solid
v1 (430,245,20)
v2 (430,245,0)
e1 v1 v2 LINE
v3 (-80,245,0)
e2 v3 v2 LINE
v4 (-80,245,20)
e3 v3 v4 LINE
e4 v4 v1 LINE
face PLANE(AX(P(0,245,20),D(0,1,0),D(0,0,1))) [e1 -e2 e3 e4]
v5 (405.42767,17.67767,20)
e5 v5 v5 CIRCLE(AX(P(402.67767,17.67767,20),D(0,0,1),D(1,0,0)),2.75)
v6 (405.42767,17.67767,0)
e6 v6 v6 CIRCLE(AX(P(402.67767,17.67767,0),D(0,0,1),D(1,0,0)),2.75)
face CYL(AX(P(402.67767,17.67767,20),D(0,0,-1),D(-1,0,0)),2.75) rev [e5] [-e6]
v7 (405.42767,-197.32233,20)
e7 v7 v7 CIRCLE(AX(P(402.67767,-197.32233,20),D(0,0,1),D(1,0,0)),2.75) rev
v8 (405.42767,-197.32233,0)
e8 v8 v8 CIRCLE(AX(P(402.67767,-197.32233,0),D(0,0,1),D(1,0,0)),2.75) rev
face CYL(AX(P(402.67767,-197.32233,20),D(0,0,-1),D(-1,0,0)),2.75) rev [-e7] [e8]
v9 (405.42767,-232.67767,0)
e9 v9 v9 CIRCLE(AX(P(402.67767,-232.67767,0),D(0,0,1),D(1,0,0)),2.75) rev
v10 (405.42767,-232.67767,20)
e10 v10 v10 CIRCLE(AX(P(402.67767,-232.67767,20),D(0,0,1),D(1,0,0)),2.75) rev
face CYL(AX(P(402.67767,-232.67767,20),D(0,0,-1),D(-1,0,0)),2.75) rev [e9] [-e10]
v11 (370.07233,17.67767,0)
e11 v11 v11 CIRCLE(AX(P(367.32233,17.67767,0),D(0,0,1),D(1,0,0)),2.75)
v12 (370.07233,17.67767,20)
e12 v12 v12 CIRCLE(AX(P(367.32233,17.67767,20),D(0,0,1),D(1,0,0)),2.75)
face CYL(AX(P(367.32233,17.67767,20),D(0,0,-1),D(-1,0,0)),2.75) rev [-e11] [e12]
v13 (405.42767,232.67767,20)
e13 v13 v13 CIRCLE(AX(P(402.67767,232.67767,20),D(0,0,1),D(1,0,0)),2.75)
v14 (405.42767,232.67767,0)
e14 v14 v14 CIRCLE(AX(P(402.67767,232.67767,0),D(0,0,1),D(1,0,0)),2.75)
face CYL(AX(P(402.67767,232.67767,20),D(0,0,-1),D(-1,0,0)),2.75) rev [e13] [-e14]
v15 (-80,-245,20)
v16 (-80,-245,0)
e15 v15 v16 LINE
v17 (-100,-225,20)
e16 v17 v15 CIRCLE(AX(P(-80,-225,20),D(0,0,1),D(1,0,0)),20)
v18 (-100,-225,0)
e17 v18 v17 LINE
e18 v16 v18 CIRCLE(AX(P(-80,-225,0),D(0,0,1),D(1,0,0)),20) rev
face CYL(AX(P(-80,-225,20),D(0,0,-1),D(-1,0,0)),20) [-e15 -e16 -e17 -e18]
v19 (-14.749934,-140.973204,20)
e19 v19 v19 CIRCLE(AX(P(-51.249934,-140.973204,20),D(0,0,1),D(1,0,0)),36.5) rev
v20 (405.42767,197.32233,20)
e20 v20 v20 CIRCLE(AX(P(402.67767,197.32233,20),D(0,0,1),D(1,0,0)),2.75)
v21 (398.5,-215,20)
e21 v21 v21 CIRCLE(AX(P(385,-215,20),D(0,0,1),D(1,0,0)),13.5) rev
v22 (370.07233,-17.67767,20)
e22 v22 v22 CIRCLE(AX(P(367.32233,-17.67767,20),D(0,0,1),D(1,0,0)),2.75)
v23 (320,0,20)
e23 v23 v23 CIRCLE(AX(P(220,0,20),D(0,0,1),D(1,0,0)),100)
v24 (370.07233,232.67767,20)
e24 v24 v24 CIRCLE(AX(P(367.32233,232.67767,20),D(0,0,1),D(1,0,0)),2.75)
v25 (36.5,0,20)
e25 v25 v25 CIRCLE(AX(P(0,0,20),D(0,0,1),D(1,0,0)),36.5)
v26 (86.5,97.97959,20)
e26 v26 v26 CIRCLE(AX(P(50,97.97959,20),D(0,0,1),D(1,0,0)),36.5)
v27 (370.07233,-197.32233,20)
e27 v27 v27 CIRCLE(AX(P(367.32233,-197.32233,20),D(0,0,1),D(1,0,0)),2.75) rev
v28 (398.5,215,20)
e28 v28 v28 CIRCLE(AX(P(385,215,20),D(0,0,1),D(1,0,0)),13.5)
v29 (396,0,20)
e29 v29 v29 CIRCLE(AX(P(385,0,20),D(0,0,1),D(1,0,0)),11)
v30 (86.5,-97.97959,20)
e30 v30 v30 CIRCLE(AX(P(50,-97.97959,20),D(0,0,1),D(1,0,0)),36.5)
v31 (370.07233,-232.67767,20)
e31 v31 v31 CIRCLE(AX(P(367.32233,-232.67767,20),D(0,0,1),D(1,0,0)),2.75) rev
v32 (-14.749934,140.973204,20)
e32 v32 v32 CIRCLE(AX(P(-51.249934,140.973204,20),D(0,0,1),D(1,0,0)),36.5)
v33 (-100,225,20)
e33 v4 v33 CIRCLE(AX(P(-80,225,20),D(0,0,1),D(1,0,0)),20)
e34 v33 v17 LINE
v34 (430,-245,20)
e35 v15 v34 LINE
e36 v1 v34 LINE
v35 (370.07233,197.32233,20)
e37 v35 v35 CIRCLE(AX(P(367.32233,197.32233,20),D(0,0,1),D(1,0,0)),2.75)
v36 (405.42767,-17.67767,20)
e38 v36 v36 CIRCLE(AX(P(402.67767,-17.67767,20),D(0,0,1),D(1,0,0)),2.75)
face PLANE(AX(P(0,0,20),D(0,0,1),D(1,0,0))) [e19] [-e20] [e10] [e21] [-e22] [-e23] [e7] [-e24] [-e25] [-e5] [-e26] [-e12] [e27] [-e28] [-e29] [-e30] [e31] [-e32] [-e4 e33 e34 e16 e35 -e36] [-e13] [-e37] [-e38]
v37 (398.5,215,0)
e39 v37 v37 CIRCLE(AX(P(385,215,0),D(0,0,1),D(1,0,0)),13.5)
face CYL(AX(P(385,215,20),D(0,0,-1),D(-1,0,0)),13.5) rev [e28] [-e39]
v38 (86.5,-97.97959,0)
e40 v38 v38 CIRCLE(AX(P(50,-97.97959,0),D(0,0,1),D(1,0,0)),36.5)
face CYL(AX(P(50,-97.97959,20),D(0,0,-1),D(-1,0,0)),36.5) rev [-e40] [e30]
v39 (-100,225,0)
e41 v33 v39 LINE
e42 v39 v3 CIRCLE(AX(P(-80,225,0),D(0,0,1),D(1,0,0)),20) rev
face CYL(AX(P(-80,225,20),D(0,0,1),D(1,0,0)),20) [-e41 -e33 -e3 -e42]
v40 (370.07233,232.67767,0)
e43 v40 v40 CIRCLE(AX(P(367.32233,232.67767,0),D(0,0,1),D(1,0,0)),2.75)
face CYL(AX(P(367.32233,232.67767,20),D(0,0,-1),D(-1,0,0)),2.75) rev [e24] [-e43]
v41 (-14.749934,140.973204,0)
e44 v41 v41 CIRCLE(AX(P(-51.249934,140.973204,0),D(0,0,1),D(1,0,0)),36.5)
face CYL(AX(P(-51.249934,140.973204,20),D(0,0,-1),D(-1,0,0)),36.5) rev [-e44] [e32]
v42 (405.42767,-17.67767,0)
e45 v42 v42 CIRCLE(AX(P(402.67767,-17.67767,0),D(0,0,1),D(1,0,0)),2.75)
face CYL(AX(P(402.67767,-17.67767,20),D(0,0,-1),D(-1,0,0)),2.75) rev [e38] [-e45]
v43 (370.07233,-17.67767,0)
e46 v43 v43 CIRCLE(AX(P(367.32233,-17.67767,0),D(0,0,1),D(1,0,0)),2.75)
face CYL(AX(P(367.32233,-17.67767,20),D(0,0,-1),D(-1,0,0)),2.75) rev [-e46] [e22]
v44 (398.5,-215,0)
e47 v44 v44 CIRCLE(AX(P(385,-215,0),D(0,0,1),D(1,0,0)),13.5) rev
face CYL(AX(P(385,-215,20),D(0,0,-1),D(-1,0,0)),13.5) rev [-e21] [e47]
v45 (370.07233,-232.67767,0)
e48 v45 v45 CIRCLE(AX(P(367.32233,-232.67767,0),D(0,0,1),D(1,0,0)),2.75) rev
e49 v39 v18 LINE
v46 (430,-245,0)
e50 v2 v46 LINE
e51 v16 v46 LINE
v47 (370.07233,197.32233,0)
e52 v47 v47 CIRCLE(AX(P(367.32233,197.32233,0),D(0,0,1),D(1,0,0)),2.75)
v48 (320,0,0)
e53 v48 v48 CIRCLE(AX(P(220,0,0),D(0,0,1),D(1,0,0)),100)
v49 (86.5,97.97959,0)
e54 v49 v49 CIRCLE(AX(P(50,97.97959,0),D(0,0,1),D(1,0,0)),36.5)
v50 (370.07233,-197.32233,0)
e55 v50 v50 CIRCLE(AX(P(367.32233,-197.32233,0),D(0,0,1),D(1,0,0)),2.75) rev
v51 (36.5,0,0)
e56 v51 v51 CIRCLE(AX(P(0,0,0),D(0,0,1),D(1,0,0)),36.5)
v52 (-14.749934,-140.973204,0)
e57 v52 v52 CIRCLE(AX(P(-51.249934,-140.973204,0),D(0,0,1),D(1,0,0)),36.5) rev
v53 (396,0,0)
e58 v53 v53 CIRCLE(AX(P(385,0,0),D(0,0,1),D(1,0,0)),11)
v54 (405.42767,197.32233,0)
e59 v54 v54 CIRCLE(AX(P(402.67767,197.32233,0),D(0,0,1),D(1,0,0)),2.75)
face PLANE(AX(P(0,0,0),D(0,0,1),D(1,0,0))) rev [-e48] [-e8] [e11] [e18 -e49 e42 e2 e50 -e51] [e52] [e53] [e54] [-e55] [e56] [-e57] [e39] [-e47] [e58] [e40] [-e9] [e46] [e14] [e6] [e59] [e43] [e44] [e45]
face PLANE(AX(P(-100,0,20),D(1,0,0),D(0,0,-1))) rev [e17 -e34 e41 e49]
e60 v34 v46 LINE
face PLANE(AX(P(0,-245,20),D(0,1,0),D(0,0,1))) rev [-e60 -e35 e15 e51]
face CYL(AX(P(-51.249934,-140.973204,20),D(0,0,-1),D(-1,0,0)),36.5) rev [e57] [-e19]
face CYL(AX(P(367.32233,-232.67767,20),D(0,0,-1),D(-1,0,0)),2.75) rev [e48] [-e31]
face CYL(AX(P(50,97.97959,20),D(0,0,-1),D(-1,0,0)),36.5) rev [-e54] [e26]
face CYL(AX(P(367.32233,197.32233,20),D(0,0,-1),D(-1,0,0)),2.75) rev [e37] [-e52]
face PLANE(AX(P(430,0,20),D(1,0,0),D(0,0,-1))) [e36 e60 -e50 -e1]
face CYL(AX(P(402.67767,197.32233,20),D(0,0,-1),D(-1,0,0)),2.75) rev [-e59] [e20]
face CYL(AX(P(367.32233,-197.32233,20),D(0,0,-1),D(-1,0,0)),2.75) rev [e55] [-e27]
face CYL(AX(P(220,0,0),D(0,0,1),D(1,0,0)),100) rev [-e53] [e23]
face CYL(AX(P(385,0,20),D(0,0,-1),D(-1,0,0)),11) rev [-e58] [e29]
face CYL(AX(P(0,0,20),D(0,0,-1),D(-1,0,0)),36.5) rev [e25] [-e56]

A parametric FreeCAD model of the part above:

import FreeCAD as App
import Part
import Sketcher
Q = App.Units.Quantity


def edges_at(feature, points):
    """Names of the edges that pass closest to the given points."""
    edges = feature.Shape.Edges
    near = lambda p: min(range(len(edges)), key=lambda i: edges[i].distToShape(Part.Vertex(*p))[0])
    return sorted({f"Edge{near(p) + 1}" for p in points})

doc = App.newDocument("Part")
params = doc.addObject("Spreadsheet::Sheet", "Params")
for row, (alias, value) in enumerate([
    ("sketch1_diameter", "73 mm"),
    ("sketch1_diameter2", "27 mm"),
    ("sketch1_diameter3", "22 mm"),
    ("sketch1_diameter4", "5.5 mm"),
    ("sketch1_width", "530 mm"),
    ("pad1_length", "20 mm"),
    ("fillet_radius", "20 mm"),
    ("sketch2_diameter", "200 mm"),
], start=1):
    params.set(f"A{row}", alias)
    params.set(f"B{row}", "=" + value)
    params.setAlias(f"B{row}", alias)

body = doc.addObject("PartDesign::Body", "Body")

# Sketch on XY plane
sketch1 = doc.addObject("Sketcher::SketchObject", "Sketch")
body.addObject(sketch1)
sketch1.AttachmentSupport = (doc.XY_Plane, [""])
sketch1.MapMode = "FlatFace"
sketch1.addGeometry(Part.LineSegment(App.Vector(-100, 245, 0), App.Vector(-100, -245, 0)), False)
sketch1.addGeometry(Part.LineSegment(App.Vector(-100, -245, 0), App.Vector(430, -245, 0)), False)
sketch1.addGeometry(Part.LineSegment(App.Vector(430, -245, 0), App.Vector(430, 245, 0)), False)
sketch1.addGeometry(Part.LineSegment(App.Vector(430, 245, 0), App.Vector(-100, 245, 0)), False)
sketch1.addGeometry(Part.Circle(App.Vector(-51.2, -141, 0), App.Vector(0, 0, 1), 36.5), False)
sketch1.addGeometry(Part.Circle(App.Vector(50, -98, 0), App.Vector(0, 0, 1), 36.5), False)
sketch1.addGeometry(Part.Circle(App.Vector(367.3, -232.7, 0), App.Vector(0, 0, 1), 2.8), False)
sketch1.addGeometry(Part.Circle(App.Vector(402.7, -232.7, 0), App.Vector(0, 0, 1), 2.8), False)
sketch1.addGeometry(Part.Circle(App.Vector(385, -215, 0), App.Vector(0, 0, 1), 13.5), False)
sketch1.addGeometry(Part.Circle(App.Vector(367.3, -197.3, 0), App.Vector(0, 0, 1), 2.8), False)
sketch1.addGeometry(Part.Circle(App.Vector(402.7, -197.3, 0), App.Vector(0, 0, 1), 2.8), False)
sketch1.addGeometry(Part.Circle(App.Vector(367.3, -17.7, 0), App.Vector(0, 0, 1), 2.8), False)
sketch1.addGeometry(Part.Circle(App.Vector(402.7, -17.7, 0), App.Vector(0, 0, 1), 2.8), False)
sketch1.addGeometry(Part.Circle(App.Vector(0, 0, 0), App.Vector(0, 0, 1), 36.5), False)
sketch1.addGeometry(Part.Circle(App.Vector(50, 98, 0), App.Vector(0, 0, 1), 36.5), False)
sketch1.addGeometry(Part.Circle(App.Vector(-51.2, 141, 0), App.Vector(0, 0, 1), 36.5), False)
sketch1.addGeometry(Part.Circle(App.Vector(367.3, 17.7, 0), App.Vector(0, 0, 1), 2.8), False)
sketch1.addGeometry(Part.Circle(App.Vector(385, 0, 0), App.Vector(0, 0, 1), 11), False)
sketch1.addGeometry(Part.Circle(App.Vector(402.7, 17.7, 0), App.Vector(0, 0, 1), 2.8), False)
sketch1.addGeometry(Part.Circle(App.Vector(367.3, 197.3, 0), App.Vector(0, 0, 1), 2.8), False)
sketch1.addGeometry(Part.Circle(App.Vector(402.7, 197.3, 0), App.Vector(0, 0, 1), 2.8), False)
sketch1.addGeometry(Part.Circle(App.Vector(367.3, 232.7, 0), App.Vector(0, 0, 1), 2.8), False)
sketch1.addGeometry(Part.Circle(App.Vector(385, 215, 0), App.Vector(0, 0, 1), 13.5), False)
sketch1.addGeometry(Part.Circle(App.Vector(402.7, 232.7, 0), App.Vector(0, 0, 1), 2.8), False)
sketch1.addConstraint(Sketcher.Constraint("Coincident", 0, 2, 1, 1))
sketch1.addConstraint(Sketcher.Constraint("Coincident", 1, 2, 2, 1))
sketch1.addConstraint(Sketcher.Constraint("Coincident", 2, 2, 3, 1))
sketch1.addConstraint(Sketcher.Constraint("Coincident", 3, 2, 0, 1))
sketch1.addConstraint(Sketcher.Constraint("Vertical", 0))
sketch1.addConstraint(Sketcher.Constraint("Horizontal", 1))
sketch1.addConstraint(Sketcher.Constraint("Vertical", 2))
sketch1.addConstraint(Sketcher.Constraint("Horizontal", 3))
sketch1.addConstraint(Sketcher.Constraint("Coincident", 13, 3, -1, 1))
sketch1.addConstraint(Sketcher.Constraint("Equal", 4, 5))
sketch1.addConstraint(Sketcher.Constraint("Equal", 6, 7))
sketch1.addConstraint(Sketcher.Constraint("Equal", 7, 9))
sketch1.addConstraint(Sketcher.Constraint("Equal", 9, 10))
sketch1.addConstraint(Sketcher.Constraint("Equal", 10, 11))
sketch1.addConstraint(Sketcher.Constraint("Equal", 11, 12))
sketch1.addConstraint(Sketcher.Constraint("Equal", 5, 13))
sketch1.addConstraint(Sketcher.Constraint("Equal", 13, 14))
sketch1.addConstraint(Sketcher.Constraint("Equal", 14, 15))
sketch1.addConstraint(Sketcher.Constraint("Equal", 12, 16))
sketch1.addConstraint(Sketcher.Constraint("Equal", 16, 18))
sketch1.addConstraint(Sketcher.Constraint("Equal", 18, 19))
sketch1.addConstraint(Sketcher.Constraint("Equal", 19, 20))
sketch1.addConstraint(Sketcher.Constraint("Equal", 20, 21))
sketch1.addConstraint(Sketcher.Constraint("Equal", 8, 22))
sketch1.addConstraint(Sketcher.Constraint("Equal", 21, 23))
sketch1.addConstraint(Sketcher.Constraint("Symmetric", 5, 3, 14, 3, -1))
sketch1.addConstraint(Sketcher.Constraint("Symmetric", 4, 3, 15, 3, -1))
sketch1.addConstraint(Sketcher.Constraint("Symmetric", 11, 3, 16, 3, -1))
sketch1.addConstraint(Sketcher.Constraint("Symmetric", 12, 3, 18, 3, -1))
sketch1.addConstraint(Sketcher.Constraint("Symmetric", 9, 3, 19, 3, -1))
sketch1.addConstraint(Sketcher.Constraint("Symmetric", 10, 3, 20, 3, -1))
sketch1.addConstraint(Sketcher.Constraint("Symmetric", 6, 3, 21, 3, -1))
sketch1.addConstraint(Sketcher.Constraint("Symmetric", 8, 3, 22, 3, -1))
sketch1.addConstraint(Sketcher.Constraint("Symmetric", 7, 3, 23, 3, -1))
sketch1.addConstraint(Sketcher.Constraint("PointOnObject", 17, 3, -1))
sketch1.addConstraint(Sketcher.Constraint("Horizontal", 6, 3, 7, 3))
sketch1.addConstraint(Sketcher.Constraint("Horizontal", 9, 3, 10, 3))
sketch1.addConstraint(Sketcher.Constraint("Horizontal", 11, 3, 12, 3))
sketch1.addConstraint(Sketcher.Constraint("Vertical", 6, 3, 9, 3))
sketch1.addConstraint(Sketcher.Constraint("Vertical", 7, 3, 10, 3))
sketch1.addConstraint(Sketcher.Constraint("Vertical", 9, 3, 11, 3))
sketch1.addConstraint(Sketcher.Constraint("Vertical", 10, 3, 12, 3))
sketch1.addConstraint(Sketcher.Constraint("Vertical", 8, 3, 17, 3))
sketch1.addConstraint(Sketcher.Constraint("Diameter", 4, Q("73 mm")))
sketch1.addConstraint(Sketcher.Constraint("Diameter", 8, Q("27 mm")))
sketch1.addConstraint(Sketcher.Constraint("Diameter", 17, Q("22 mm")))
sketch1.addConstraint(Sketcher.Constraint("Diameter", 6, Q("5.5 mm")))
sketch1.addConstraint(Sketcher.Constraint("DistanceX", 1, 1, 1, 2, Q("530 mm")))
sketch1.addConstraint(Sketcher.Constraint("DistanceY", 0, 2, 0, 1, Q("490 mm")))
sketch1.addConstraint(Sketcher.Constraint("DistanceX", -1, 1, 5, 3, Q("50 mm")))
sketch1.addConstraint(Sketcher.Constraint("DistanceX", -1, 1, 8, 3, Q("385 mm")))
sketch1.addConstraint(Sketcher.Constraint("DistanceY", 8, 3, -1, 1, Q("215 mm")))
sketch1.addConstraint(Sketcher.Constraint("DistanceX", 0, 2, -1, 1, Q("100 mm")))
sketch1.addConstraint(Sketcher.Constraint("DistanceY", 0, 2, -1, 1, Q("245 mm")))
sketch1.addConstraint(Sketcher.Constraint("DistanceY", 6, 3, 11, 3, Q("215 mm")))
sketch1.addConstraint(Sketcher.Constraint("DistanceY", 9, 3, 16, 3, Q("215 mm")))
sketch1.addConstraint(Sketcher.Constraint("DistanceY", 5, 3, -1, 1, Q("97.97959 mm")))
sketch1.addConstraint(Sketcher.Constraint("DistanceX", -1, 1, 6, 3, Q("367.32233 mm")))
sketch1.addConstraint(Sketcher.Constraint("DistanceY", 6, 3, -1, 1, Q("232.67767 mm")))
sketch1.addConstraint(Sketcher.Constraint("DistanceX", -1, 1, 7, 3, Q("402.67767 mm")))
sketch1.addConstraint(Sketcher.Constraint("DistanceY", 4, 3, 15, 3, Q("281.946408 mm")))
sketch1.addConstraint(Sketcher.Constraint("DistanceX", 4, 3, -1, 1, Q("51.249934 mm")))
sketch1.setExpression("Constraints[43]", "Params.sketch1_diameter")
sketch1.setExpression("Constraints[44]", "Params.sketch1_diameter2")
sketch1.setExpression("Constraints[45]", "Params.sketch1_diameter3")
sketch1.setExpression("Constraints[46]", "Params.sketch1_diameter4")
sketch1.setExpression("Constraints[47]", "Params.sketch1_width")
pad1 = doc.addObject("PartDesign::Pad", "Pad")
body.addObject(pad1)
pad1.Profile = sketch1
pad1.setExpression("Length", "Params.pad1_length")
doc.recompute()

fillet = doc.addObject("PartDesign::Fillet", "Fillet")
body.addObject(fillet)
fillet.Base = (pad1, edges_at(pad1, [(-100, -245, 10), (-100, 245, 10)]))
fillet.setExpression("Radius", "Params.fillet_radius")

# Sketch on XY plane
sketch2 = doc.addObject("Sketcher::SketchObject", "Sketch001")
body.addObject(sketch2)
sketch2.AttachmentSupport = (doc.XY_Plane, [""])
sketch2.MapMode = "FlatFace"
sketch2.AttachmentOffset = App.Placement(App.Vector(0, 0, 20), App.Rotation())
sketch2.addGeometry(Part.Circle(App.Vector(220, 0, 0), App.Vector(0, 0, 1), 100), False)
sketch2.addConstraint(Sketcher.Constraint("PointOnObject", 0, 3, -1))
sketch2.addConstraint(Sketcher.Constraint("Diameter", 0, Q("200 mm")))
sketch2.addConstraint(Sketcher.Constraint("DistanceX", -1, 1, 0, 3, Q("220 mm")))
sketch2.setExpression("Constraints[1]", "Params.sketch2_diameter")
pocket1 = doc.addObject("PartDesign::Pocket", "Pocket")
body.addObject(pocket1)
pocket1.Profile = sketch2
pocket1.Type = "ThroughAll"

doc.recompute()
